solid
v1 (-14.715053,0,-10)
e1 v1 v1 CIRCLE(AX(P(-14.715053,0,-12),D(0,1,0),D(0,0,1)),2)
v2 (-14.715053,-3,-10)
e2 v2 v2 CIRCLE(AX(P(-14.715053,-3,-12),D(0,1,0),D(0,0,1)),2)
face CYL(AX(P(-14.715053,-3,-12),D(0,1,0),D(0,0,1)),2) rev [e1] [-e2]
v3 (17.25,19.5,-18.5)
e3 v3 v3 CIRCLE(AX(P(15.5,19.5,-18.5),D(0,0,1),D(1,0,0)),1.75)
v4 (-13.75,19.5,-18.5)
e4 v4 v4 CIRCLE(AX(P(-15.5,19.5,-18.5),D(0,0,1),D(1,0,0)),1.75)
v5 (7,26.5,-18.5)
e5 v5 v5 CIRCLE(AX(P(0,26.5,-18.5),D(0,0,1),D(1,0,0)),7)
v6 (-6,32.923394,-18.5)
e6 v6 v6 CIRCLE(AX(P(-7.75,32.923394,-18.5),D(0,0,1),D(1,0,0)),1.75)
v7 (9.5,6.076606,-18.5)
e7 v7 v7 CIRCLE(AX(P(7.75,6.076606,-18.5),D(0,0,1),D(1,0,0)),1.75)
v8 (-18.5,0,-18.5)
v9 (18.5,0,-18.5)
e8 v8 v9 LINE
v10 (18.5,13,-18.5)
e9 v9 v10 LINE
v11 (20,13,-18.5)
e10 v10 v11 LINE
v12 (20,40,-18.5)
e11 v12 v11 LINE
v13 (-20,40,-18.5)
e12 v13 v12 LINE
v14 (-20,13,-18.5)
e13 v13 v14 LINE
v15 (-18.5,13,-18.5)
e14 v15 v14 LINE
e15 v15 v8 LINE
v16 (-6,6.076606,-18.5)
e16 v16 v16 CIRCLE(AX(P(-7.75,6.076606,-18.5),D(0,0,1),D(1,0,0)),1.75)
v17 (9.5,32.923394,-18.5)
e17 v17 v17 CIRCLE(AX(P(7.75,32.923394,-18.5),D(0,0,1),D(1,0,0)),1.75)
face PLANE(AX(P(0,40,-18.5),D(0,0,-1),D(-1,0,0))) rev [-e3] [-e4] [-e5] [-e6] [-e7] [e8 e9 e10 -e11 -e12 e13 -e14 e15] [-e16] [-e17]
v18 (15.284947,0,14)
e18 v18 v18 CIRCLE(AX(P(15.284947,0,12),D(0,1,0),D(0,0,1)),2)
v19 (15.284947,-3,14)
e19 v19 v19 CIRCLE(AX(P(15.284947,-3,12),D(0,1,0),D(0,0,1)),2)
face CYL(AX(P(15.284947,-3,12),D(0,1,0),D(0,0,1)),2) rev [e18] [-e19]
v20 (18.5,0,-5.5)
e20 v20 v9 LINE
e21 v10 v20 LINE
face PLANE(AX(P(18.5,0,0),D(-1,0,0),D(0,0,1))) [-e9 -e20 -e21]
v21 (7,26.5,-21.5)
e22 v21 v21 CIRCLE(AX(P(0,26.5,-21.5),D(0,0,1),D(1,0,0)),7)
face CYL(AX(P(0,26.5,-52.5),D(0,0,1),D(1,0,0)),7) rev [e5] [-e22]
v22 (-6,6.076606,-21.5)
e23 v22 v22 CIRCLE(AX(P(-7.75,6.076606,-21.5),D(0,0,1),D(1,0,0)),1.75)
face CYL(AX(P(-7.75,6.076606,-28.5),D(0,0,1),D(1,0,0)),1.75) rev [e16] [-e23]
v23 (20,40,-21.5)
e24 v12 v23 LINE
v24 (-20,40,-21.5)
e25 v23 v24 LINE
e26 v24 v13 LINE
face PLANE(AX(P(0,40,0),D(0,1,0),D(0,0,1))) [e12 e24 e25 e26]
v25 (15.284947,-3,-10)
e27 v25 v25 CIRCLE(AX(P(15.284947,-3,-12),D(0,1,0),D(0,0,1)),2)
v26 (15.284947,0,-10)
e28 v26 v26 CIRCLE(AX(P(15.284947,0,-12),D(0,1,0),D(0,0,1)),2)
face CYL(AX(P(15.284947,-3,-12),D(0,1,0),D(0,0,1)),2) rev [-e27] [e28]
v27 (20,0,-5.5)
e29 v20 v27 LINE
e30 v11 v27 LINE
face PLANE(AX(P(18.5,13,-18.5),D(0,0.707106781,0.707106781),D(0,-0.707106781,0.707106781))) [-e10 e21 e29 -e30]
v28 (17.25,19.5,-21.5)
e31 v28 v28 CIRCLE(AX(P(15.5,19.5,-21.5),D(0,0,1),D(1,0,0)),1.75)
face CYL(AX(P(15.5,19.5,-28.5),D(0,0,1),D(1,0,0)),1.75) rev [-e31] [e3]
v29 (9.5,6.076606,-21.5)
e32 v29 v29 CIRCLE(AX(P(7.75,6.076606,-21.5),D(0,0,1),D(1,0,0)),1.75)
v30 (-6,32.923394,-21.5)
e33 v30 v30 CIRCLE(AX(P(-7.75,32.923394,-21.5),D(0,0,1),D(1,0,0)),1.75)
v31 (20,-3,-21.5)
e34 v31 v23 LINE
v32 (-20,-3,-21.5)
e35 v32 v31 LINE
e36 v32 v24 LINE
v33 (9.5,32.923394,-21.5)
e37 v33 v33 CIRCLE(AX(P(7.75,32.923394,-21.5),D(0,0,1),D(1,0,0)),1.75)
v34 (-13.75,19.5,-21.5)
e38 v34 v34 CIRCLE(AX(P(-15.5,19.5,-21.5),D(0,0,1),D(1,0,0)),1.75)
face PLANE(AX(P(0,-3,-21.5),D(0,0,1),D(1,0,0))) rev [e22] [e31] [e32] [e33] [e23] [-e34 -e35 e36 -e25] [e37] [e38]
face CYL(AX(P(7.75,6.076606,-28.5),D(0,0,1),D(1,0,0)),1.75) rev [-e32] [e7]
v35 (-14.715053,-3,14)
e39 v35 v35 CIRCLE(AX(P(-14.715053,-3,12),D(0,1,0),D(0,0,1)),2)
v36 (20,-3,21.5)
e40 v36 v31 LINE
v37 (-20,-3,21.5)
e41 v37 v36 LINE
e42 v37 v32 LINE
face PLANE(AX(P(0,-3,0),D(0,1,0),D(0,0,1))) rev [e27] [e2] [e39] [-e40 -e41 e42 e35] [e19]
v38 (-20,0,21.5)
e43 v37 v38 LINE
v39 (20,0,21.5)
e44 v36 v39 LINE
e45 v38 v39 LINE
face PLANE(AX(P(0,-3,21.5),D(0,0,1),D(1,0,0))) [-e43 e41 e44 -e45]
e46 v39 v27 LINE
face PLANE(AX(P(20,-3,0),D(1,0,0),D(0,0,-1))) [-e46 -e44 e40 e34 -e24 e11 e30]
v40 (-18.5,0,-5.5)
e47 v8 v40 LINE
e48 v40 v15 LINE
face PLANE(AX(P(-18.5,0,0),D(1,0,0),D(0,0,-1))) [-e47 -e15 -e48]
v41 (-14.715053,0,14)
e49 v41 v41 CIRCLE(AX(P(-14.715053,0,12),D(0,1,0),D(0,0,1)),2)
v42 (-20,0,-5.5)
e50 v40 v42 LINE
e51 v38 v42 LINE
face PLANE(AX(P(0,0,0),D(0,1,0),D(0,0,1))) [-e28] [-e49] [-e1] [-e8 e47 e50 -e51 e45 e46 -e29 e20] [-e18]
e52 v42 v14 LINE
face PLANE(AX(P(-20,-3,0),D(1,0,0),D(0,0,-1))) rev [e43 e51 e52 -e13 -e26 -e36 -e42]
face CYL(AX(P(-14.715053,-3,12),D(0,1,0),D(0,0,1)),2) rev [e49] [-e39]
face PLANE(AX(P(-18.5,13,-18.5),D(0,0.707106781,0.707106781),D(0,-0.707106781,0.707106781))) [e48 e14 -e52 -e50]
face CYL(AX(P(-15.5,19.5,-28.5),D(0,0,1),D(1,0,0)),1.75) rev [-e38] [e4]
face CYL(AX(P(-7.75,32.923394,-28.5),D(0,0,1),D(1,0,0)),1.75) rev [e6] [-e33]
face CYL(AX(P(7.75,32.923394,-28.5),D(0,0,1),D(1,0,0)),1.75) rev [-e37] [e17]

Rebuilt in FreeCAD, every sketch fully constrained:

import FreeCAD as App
import Part
import Sketcher

V = App.Vector

doc = App.newDocument("Part")
body = doc.addObject("PartDesign::Body", "Body")

# Sketch on XZ plane
sketch1 = body.newObject("Sketcher::SketchObject", "Sketch")
sketch1.AttachmentSupport = (doc.getObject("XZ_Plane"), [""])
sketch1.MapMode = "FlatFace"
sketch1.addGeometry([
    Part.LineSegment(V(-20, -21.5, 0), V(-20, 21.5, 0)),  # 0
    Part.LineSegment(V(-20, 21.5, 0), V(20, 21.5, 0)),  # 1
    Part.LineSegment(V(20, 21.5, 0), V(20, -21.5, 0)),  # 2
    Part.LineSegment(V(20, -21.5, 0), V(-20, -21.5, 0)),  # 3
    Part.Circle(V(-14.7, 12, 0), V(0, 0, 1), 2),  # 4
    Part.Circle(V(15.3, 12, 0), V(0, 0, 1), 2),  # 5
    Part.Circle(V(-14.7, -12, 0), V(0, 0, 1), 2),  # 6
    Part.Circle(V(15.3, -12, 0), V(0, 0, 1), 2),  # 7
], False)
sketch1.addConstraint([
    Sketcher.Constraint("Coincident", 0, 2, 1, 1),
    Sketcher.Constraint("Coincident", 1, 2, 2, 1),
    Sketcher.Constraint("Coincident", 2, 2, 3, 1),
    Sketcher.Constraint("Coincident", 3, 2, 0, 1),
    Sketcher.Constraint("Vertical", 0),
    Sketcher.Constraint("Horizontal", 1),
    Sketcher.Constraint("Vertical", 2),
    Sketcher.Constraint("Horizontal", 3),
    Sketcher.Constraint("Equal", 4, 5),
    Sketcher.Constraint("Equal", 5, 6),
    Sketcher.Constraint("Equal", 6, 7),
    Sketcher.Constraint("Symmetric", 0, 2, 2, 2, -1, 1),
    Sketcher.Constraint("Symmetric", 4, 3, 6, 3, -1),
    Sketcher.Constraint("Symmetric", 5, 3, 7, 3, -1),
    Sketcher.Constraint("Horizontal", 4, 3, 5, 3),
    Sketcher.Constraint("Diameter", 4, 4.0),
    Sketcher.Constraint("DistanceX", 1, 1, 1, 2, 40.0),
    Sketcher.Constraint("DistanceY", 0, 1, 0, 2, 43.0),
    Sketcher.Constraint("DistanceY", -1, 1, 4, 3, 12.0),
    Sketcher.Constraint("DistanceX", 4, 3, 5, 3, 30.0),
    Sketcher.Constraint("DistanceX", 4, 3, -1, 1, 14.715053),
])
pad1 = body.newObject("PartDesign::Pad", "Pad")
pad1.Profile = sketch1
pad1.Length = 3

# Sketch on XZ plane
sketch2 = body.newObject("Sketcher::SketchObject", "Sketch001")
sketch2.AttachmentSupport = (doc.getObject("XZ_Plane"), [""])
sketch2.MapMode = "FlatFace"
sketch2.addGeometry([
    Part.LineSegment(V(-20, -21.5, 0), V(-20, -18.5, 0)),
    Part.LineSegment(V(-20, -18.5, 0), V(20, -18.5, 0)),
    Part.LineSegment(V(20, -18.5, 0), V(20, -21.5, 0)),
    Part.LineSegment(V(20, -21.5, 0), V(-20, -21.5, 0)),
], False)
sketch2.addConstraint([
    Sketcher.Constraint("Coincident", 0, 2, 1, 1),
    Sketcher.Constraint("Coincident", 1, 2, 2, 1),
    Sketcher.Constraint("Coincident", 2, 2, 3, 1),
    Sketcher.Constraint("Coincident", 3, 2, 0, 1),
    Sketcher.Constraint("Vertical", 0),
    Sketcher.Constraint("Horizontal", 1),
    Sketcher.Constraint("Vertical", 2),
    Sketcher.Constraint("Horizontal", 3),
    Sketcher.Constraint("DistanceX", 1, 1, 1, 2, 40.0),
    Sketcher.Constraint("DistanceY", 0, 1, 0, 2, 3.0),
    Sketcher.Constraint("DistanceX", 0, 2, -1, 1, 20.0),
    Sketcher.Constraint("DistanceY", 0, 2, -1, 1, 18.5),
])
pad2 = body.newObject("PartDesign::Pad", "Pad001")
pad2.Profile = sketch2
pad2.Length = 40
pad2.Reversed = True

# Sketch on XY plane
sketch3 = body.newObject("Sketcher::SketchObject", "Sketch002")
sketch3.AttachmentSupport = (doc.getObject("XY_Plane"), [""])
sketch3.MapMode = "FlatFace"
sketch3.AttachmentOffset = App.Placement(V(0, 0, -18.5), App.Rotation())
sketch3.addGeometry(Part.Circle(V(0, 26, 0), V(0, 0, 1), 7), False)
sketch3.addConstraint([
    Sketcher.Constraint("PointOnObject", 0, 3, -2),
    Sketcher.Constraint("Diameter", 0, 14.0),
    Sketcher.Constraint("DistanceY", -1, 1, 0, 3, 26.5),
])
pocket1 = body.newObject("PartDesign::Pocket", "Pocket")
pocket1.Profile = sketch3
pocket1.Length = 34

# Sketch on XY plane
sketch4 = body.newObject("Sketcher::SketchObject", "Sketch003")
sketch4.AttachmentSupport = (doc.getObject("XY_Plane"), [""])
sketch4.MapMode = "FlatFace"
sketch4.AttachmentOffset = App.Placement(V(0, 0, -18.5), App.Rotation())
sketch4.addGeometry([
    Part.Circle(V(-15.5, 19.5, 0), V(0, 0, 1), 1.8),  # 0
    Part.Circle(V(-7.8, 32.9, 0), V(0, 0, 1), 1.8),  # 1
    Part.Circle(V(7.8, 32.9, 0), V(0, 0, 1), 1.8),  # 2
    Part.Circle(V(15.5, 19.5, 0), V(0, 0, 1), 1.8),  # 3
    Part.Circle(V(7.8, 6.1, 0), V(0, 0, 1), 1.8),  # 4
    Part.Circle(V(-7.8, 6.1, 0), V(0, 0, 1), 1.8),  # 5
], False)
sketch4.addConstraint([
    Sketcher.Constraint("Equal", 0, 1),
    Sketcher.Constraint("Equal", 1, 2),
    Sketcher.Constraint("Equal", 2, 3),
    Sketcher.Constraint("Equal", 3, 4),
    Sketcher.Constraint("Equal", 4, 5),
    Sketcher.Constraint("Symmetric", 1, 3, 2, 3, -2),
    Sketcher.Constraint("Symmetric", 0, 3, 3, 3, -2),
    Sketcher.Constraint("Symmetric", 4, 3, 5, 3, -2),
    Sketcher.Constraint("Vertical", 2, 3, 4, 3),
    Sketcher.Constraint("Diameter", 0, 3.5),
    Sketcher.Constraint("DistanceX", 0, 3, 3, 3, 31.0),
    Sketcher.Constraint("DistanceY", -1, 1, 0, 3, 19.5),
    Sketcher.Constraint("DistanceX", 1, 3, 2, 3, 15.5),
    Sketcher.Constraint("DistanceY", -1, 1, 1, 3, 32.923394),
    Sketcher.Constraint("DistanceY", -1, 1, 4, 3, 6.076606),
])
pocket2 = body.newObject("PartDesign::Pocket", "Pocket001")
pocket2.Profile = sketch4
pocket2.Length = 10

# Sketch on YZ plane
sketch5 = body.newObject("Sketcher::SketchObject", "Sketch004")
sketch5.AttachmentSupport = (doc.getObject("YZ_Plane"), [""])
sketch5.MapMode = "FlatFace"
sketch5.AttachmentOffset = App.Placement(V(0, 0, 20), App.Rotation())
sketch5.addGeometry([
    Part.LineSegment(V(0, -18, 0), V(13, -18, 0)),
    Part.LineSegment(V(13, -18, 0), V(0, -6, 0)),
    Part.LineSegment(V(0, -6, 0), V(0, -18, 0)),
], False)
sketch5.addConstraint([
    Sketcher.Constraint("Coincident", 0, 2, 1, 1),
    Sketcher.Constraint("Coincident", 1, 2, 2, 1),
    Sketcher.Constraint("Coincident", 2, 2, 0, 1),
    Sketcher.Constraint("Horizontal", 0),
    Sketcher.Constraint("Vertical", 2),
    Sketcher.Constraint("PointOnObject", 1, 2, -2),
    Sketcher.Constraint("Equal", 0, 2),
    Sketcher.Constraint("DistanceX", 0, 1, 0, 2, 13.0),
    Sketcher.Constraint("DistanceY", 0, 2, -1, 1, 18.5),
])
pad3 = body.newObject("PartDesign::Pad", "Pad002")
pad3.Profile = sketch5
pad3.Length = 1.5
pad3.Reversed = True

# Sketch on YZ plane
sketch6 = body.newObject("Sketcher::SketchObject", "Sketch005")
sketch6.AttachmentSupport = (doc.getObject("YZ_Plane"), [""])
sketch6.MapMode = "FlatFace"
sketch6.AttachmentOffset = App.Placement(V(0, 0, -20), App.Rotation())
sketch6.addGeometry([
    Part.LineSegment(V(13, -18, 0), V(0, -18, 0)),
    Part.LineSegment(V(0, -18, 0), V(0, -6, 0)),
    Part.LineSegment(V(0, -6, 0), V(13, -18, 0)),
], False)
sketch6.addConstraint([
    Sketcher.Constraint("Coincident", 0, 2, 1, 1),
    Sketcher.Constraint("Coincident", 1, 2, 2, 1),
    Sketcher.Constraint("Coincident", 2, 2, 0, 1),
    Sketcher.Constraint("Horizontal", 0),
    Sketcher.Constraint("Vertical", 1),
    Sketcher.Constraint("PointOnObject", 0, 2, -2),
    Sketcher.Constraint("Equal", 0, 1),
    Sketcher.Constraint("DistanceX", 0, 2, 0, 1, 13.0),
    Sketcher.Constraint("DistanceY", 0, 2, -1, 1, 18.5),
])
pad4 = body.newObject("PartDesign::Pad", "Pad003")
pad4.Profile = sketch6
pad4.Length = 1.5

doc.recompute()
